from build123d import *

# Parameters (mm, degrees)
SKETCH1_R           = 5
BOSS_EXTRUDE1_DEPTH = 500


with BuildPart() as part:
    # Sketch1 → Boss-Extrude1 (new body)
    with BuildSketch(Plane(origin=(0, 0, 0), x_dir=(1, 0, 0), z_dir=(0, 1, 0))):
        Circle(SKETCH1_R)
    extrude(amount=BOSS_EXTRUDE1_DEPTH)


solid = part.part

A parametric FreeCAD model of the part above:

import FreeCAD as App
import Part
import Sketcher
from FreeCAD import Vector

doc = App.newDocument("Part")
body = doc.addObject("PartDesign::Body", "Body")

sketch1 = body.newObject("Sketcher::SketchObject", "Sketch")
sketch1.AttachmentSupport = (doc.getObject("XZ_Plane"), [""])
sketch1.MapMode = "FlatFace"
sketch1.addGeometry(Part.Circle(Vector(0, 0, 0), Vector(0, 0, 1), 5), False)
sketch1.addConstraint(Sketcher.Constraint("Coincident", 0, 3, -1, 1))
sketch1.addConstraint(Sketcher.Constraint("Diameter", 0, 10.0))
pad1 = body.newObject("PartDesign::Pad", "Pad")
pad1.Profile = sketch1
pad1.Length = 500
pad1.Reversed = True

doc.recompute()
